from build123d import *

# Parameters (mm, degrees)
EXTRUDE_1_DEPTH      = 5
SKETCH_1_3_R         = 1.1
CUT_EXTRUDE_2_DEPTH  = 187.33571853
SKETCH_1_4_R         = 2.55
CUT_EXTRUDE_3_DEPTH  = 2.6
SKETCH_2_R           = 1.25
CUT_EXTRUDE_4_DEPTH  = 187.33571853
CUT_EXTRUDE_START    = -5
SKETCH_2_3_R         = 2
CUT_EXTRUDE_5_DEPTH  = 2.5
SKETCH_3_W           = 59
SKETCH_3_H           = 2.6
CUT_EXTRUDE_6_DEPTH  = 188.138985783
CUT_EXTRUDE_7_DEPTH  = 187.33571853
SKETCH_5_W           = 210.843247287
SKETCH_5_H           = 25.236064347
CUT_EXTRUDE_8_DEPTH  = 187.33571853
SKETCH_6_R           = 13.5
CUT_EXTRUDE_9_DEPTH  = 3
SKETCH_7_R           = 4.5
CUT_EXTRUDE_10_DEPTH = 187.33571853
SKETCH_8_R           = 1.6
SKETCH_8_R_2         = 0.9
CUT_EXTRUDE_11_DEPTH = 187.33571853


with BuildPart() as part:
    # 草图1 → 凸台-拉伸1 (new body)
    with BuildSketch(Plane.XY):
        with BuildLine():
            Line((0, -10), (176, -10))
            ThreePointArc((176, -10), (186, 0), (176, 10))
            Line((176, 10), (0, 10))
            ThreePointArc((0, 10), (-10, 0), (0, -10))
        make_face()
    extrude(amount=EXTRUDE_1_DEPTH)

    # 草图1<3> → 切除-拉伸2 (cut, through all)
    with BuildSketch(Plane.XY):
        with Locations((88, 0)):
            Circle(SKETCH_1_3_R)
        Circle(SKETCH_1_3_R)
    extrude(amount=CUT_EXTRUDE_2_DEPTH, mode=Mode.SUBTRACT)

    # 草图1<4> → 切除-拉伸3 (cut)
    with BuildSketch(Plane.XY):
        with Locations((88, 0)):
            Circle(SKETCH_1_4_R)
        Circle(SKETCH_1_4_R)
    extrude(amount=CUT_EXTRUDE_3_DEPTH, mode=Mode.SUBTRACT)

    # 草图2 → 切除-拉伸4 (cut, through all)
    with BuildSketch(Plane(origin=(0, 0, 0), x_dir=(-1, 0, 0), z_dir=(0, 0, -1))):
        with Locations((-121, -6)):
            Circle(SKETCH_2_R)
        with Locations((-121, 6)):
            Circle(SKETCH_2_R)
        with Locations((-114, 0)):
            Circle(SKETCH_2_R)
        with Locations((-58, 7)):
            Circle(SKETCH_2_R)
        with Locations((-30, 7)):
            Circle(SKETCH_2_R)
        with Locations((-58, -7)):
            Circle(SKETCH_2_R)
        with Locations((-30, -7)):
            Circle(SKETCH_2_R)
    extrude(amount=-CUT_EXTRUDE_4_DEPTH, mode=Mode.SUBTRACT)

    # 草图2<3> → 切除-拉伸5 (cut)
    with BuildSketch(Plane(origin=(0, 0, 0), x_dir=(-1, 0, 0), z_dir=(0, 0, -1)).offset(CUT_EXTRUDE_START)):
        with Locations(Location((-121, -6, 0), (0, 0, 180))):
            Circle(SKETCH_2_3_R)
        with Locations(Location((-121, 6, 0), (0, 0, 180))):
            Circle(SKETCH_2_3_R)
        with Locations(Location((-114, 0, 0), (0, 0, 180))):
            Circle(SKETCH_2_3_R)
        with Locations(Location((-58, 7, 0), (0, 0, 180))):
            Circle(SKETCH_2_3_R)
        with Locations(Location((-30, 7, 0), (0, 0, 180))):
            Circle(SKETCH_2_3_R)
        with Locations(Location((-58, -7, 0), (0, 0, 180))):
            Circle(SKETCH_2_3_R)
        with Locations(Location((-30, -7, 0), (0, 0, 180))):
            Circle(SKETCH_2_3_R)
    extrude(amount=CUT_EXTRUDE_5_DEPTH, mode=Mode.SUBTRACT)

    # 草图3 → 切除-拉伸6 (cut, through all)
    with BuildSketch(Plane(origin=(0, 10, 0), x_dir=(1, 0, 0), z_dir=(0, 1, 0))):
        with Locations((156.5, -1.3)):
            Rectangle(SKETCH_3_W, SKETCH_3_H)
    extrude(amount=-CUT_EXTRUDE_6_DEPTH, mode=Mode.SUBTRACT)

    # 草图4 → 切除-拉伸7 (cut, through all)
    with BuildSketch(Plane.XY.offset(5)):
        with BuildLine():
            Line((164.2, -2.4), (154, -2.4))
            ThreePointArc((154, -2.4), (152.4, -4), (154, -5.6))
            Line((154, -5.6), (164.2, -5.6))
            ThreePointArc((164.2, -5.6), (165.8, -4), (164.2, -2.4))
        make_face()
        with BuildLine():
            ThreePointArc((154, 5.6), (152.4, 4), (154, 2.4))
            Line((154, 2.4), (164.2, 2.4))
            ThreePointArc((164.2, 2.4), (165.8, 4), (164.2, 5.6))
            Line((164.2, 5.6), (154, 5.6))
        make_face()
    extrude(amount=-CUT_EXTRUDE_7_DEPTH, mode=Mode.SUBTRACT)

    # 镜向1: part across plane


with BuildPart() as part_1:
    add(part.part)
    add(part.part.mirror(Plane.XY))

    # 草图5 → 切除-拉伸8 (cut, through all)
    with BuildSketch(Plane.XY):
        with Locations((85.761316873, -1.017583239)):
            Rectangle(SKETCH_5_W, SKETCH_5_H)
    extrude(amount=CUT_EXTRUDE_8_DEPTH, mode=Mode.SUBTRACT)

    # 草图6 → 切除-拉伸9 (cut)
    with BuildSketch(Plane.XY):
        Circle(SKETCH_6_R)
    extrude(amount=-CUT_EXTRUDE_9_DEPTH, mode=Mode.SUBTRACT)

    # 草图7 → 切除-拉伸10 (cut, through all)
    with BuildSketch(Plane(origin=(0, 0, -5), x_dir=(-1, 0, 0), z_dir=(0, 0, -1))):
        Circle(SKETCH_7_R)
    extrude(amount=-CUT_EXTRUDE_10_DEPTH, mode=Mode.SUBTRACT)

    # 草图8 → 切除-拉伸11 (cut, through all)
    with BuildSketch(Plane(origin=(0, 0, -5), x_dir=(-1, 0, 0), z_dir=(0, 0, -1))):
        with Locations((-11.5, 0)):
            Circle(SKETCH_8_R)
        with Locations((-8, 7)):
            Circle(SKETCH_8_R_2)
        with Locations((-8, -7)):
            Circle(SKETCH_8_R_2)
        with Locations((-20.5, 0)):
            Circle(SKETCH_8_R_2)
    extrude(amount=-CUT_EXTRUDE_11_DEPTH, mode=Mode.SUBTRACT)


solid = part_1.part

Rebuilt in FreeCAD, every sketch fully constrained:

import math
import FreeCAD as App
import Part
import Sketcher
from FreeCAD import Vector

doc = App.newDocument("Part")
body = doc.addObject("PartDesign::Body", "Body")

sketch1 = body.newObject("Sketcher::SketchObject", "Sketch")
sketch1.AttachmentSupport = (doc.getObject("XY_Plane"), [""])
sketch1.MapMode = "FlatFace"
sketch1.addGeometry([
    Part.LineSegment(Vector(0, -10, 0), Vector(176, -10, 0)),
    Part.ArcOfCircle(Part.Circle(Vector(176, 0, 0), Vector(0, 0, 1), 10), math.radians(-90), math.radians(90)),
    Part.LineSegment(Vector(176, 10, 0), Vector(0, 10, 0)),
    Part.ArcOfCircle(Part.Circle(Vector(0, 0, 0), Vector(0, 0, 1), 10), math.radians(90), math.radians(270)),
], False)
sketch1.addConstraint([
    Sketcher.Constraint("Tangent", 0, 2, 1, 1),
    Sketcher.Constraint("Tangent", 1, 2, 2, 1),
    Sketcher.Constraint("Tangent", 2, 2, 3, 1),
    Sketcher.Constraint("Tangent", 3, 2, 0, 1),
    Sketcher.Constraint("Horizontal", 0),
    Sketcher.Constraint("Horizontal", 2),
    Sketcher.Constraint("Coincident", 3, 3, -1, 1),
    Sketcher.Constraint("Radius", 1, 10.0),
    Sketcher.Constraint("DistanceX", 0, 1, 0, 2, 176.0),
])
pad1 = body.newObject("PartDesign::Pad", "Pad")
pad1.Profile = sketch1
pad1.Length = 5

sketch2 = body.newObject("Sketcher::SketchObject", "Sketch001")
sketch2.AttachmentSupport = (doc.getObject("XY_Plane"), [""])
sketch2.MapMode = "FlatFace"
sketch2.addGeometry([
    Part.Circle(Vector(88, 0, 0), Vector(0, 0, 1), 1.1),
    Part.Circle(Vector(0, 0, 0), Vector(0, 0, 1), 1.1),
], False)
sketch2.addConstraint([
    Sketcher.Constraint("Coincident", 1, 3, -1, 1),
    Sketcher.Constraint("Equal", 0, 1),
    Sketcher.Constraint("PointOnObject", 0, 3, -1),
    Sketcher.Constraint("Diameter", 0, 2.2),
    Sketcher.Constraint("DistanceX", -1, 1, 0, 3, 88.0),
])
pocket1 = body.newObject("PartDesign::Pocket", "Pocket")
pocket1.Profile = sketch2
pocket1.Type = "ThroughAll"
pocket1.Reversed = True

sketch3 = body.newObject("Sketcher::SketchObject", "Sketch002")
sketch3.AttachmentSupport = (doc.getObject("XY_Plane"), [""])
sketch3.MapMode = "FlatFace"
sketch3.addGeometry([
    Part.Circle(Vector(88, 0, 0), Vector(0, 0, 1), 2.55),
    Part.Circle(Vector(0, 0, 0), Vector(0, 0, 1), 2.55),
], False)
sketch3.addConstraint([
    Sketcher.Constraint("Coincident", 1, 3, -1, 1),
    Sketcher.Constraint("Equal", 0, 1),
    Sketcher.Constraint("PointOnObject", 0, 3, -1),
    Sketcher.Constraint("Diameter", 0, 5.1),
    Sketcher.Constraint("DistanceX", -1, 1, 0, 3, 88.0),
])
pocket2 = body.newObject("PartDesign::Pocket", "Pocket001")
pocket2.Profile = sketch3
pocket2.Length = 2.6
pocket2.Reversed = True

sketch4 = body.newObject("Sketcher::SketchObject", "Sketch003")
sketch4.AttachmentSupport = (doc.getObject("XY_Plane"), [""])
sketch4.MapMode = "FlatFace"
sketch4.addGeometry([
    Part.Circle(Vector(121, -6, 0), Vector(0, 0, 1), 1.25),
    Part.Circle(Vector(121, 6, 0), Vector(0, 0, 1), 1.25),
    Part.Circle(Vector(114, 0, 0), Vector(0, 0, 1), 1.25),
    Part.Circle(Vector(58, 7, 0), Vector(0, 0, 1), 1.25),
    Part.Circle(Vector(30, 7, 0), Vector(0, 0, 1), 1.25),
    Part.Circle(Vector(58, -7, 0), Vector(0, 0, 1), 1.25),
    Part.Circle(Vector(30, -7, 0), Vector(0, 0, 1), 1.25),
], False)
sketch4.addConstraint([
    Sketcher.Constraint("Equal", 0, 1),
    Sketcher.Constraint("Equal", 1, 2),
    Sketcher.Constraint("Equal", 2, 3),
    Sketcher.Constraint("Equal", 3, 4),
    Sketcher.Constraint("Equal", 4, 5),
    Sketcher.Constraint("Equal", 5, 6),
    Sketcher.Constraint("Symmetric", 0, 3, 1, 3, -1),
    Sketcher.Constraint("Symmetric", 3, 3, 5, 3, -1),
    Sketcher.Constraint("Symmetric", 4, 3, 6, 3, -1),
    Sketcher.Constraint("PointOnObject", 2, 3, -1),
    Sketcher.Constraint("Horizontal", 3, 3, 4, 3),
    Sketcher.Constraint("Diameter", 0, 2.5),
    Sketcher.Constraint("DistanceX", -1, 1, 0, 3, 121.0),
    Sketcher.Constraint("DistanceY", 0, 3, -1, 1, 6.0),
    Sketcher.Constraint("DistanceX", -1, 1, 2, 3, 114.0),
    Sketcher.Constraint("DistanceX", -1, 1, 3, 3, 58.0),
    Sketcher.Constraint("DistanceY", -1, 1, 3, 3, 7.0),
    Sketcher.Constraint("DistanceX", -1, 1, 4, 3, 30.0),
])
pocket3 = body.newObject("PartDesign::Pocket", "Pocket002")
pocket3.Profile = sketch4
pocket3.Type = "ThroughAll"
pocket3.Reversed = True

sketch5 = body.newObject("Sketcher::SketchObject", "Sketch004")
sketch5.AttachmentSupport = (doc.getObject("XY_Plane"), [""])
sketch5.MapMode = "FlatFace"
sketch5.AttachmentOffset = App.Placement(Vector(0, 0, 5), App.Rotation())
sketch5.addGeometry([
    Part.Circle(Vector(121, -6, 0), Vector(0, 0, 1), 2),
    Part.Circle(Vector(121, 6, 0), Vector(0, 0, 1), 2),
    Part.Circle(Vector(114, 0, 0), Vector(0, 0, 1), 2),
    Part.Circle(Vector(58, 7, 0), Vector(0, 0, 1), 2),
    Part.Circle(Vector(30, 7, 0), Vector(0, 0, 1), 2),
    Part.Circle(Vector(58, -7, 0), Vector(0, 0, 1), 2),
    Part.Circle(Vector(30, -7, 0), Vector(0, 0, 1), 2),
], False)
sketch5.addConstraint([
    Sketcher.Constraint("Equal", 0, 1),
    Sketcher.Constraint("Equal", 1, 2),
    Sketcher.Constraint("Equal", 2, 3),
    Sketcher.Constraint("Equal", 3, 4),
    Sketcher.Constraint("Equal", 4, 5),
    Sketcher.Constraint("Equal", 5, 6),
    Sketcher.Constraint("Symmetric", 0, 3, 1, 3, -1),
    Sketcher.Constraint("Symmetric", 3, 3, 5, 3, -1),
    Sketcher.Constraint("Symmetric", 4, 3, 6, 3, -1),
    Sketcher.Constraint("PointOnObject", 2, 3, -1),
    Sketcher.Constraint("Horizontal", 3, 3, 4, 3),
    Sketcher.Constraint("Diameter", 0, 4.0),
    Sketcher.Constraint("DistanceX", -1, 1, 0, 3, 121.0),
    Sketcher.Constraint("DistanceY", 0, 3, -1, 1, 6.0),
    Sketcher.Constraint("DistanceX", -1, 1, 2, 3, 114.0),
    Sketcher.Constraint("DistanceX", -1, 1, 3, 3, 58.0),
    Sketcher.Constraint("DistanceY", -1, 1, 3, 3, 7.0),
    Sketcher.Constraint("DistanceX", -1, 1, 4, 3, 30.0),
])
pocket4 = body.newObject("PartDesign::Pocket", "Pocket003")
pocket4.Profile = sketch5
pocket4.Length = 2.5

sketch6 = body.newObject("Sketcher::SketchObject", "Sketch005")
sketch6.AttachmentSupport = (doc.getObject("XZ_Plane"), [""])
sketch6.MapMode = "FlatFace"
sketch6.AttachmentOffset = App.Placement(Vector(0, 0, -10), App.Rotation())
sketch6.addGeometry([
    Part.LineSegment(Vector(127, 0, 0), Vector(127, 2.6, 0)),
    Part.LineSegment(Vector(127, 2.6, 0), Vector(186, 2.6, 0)),
    Part.LineSegment(Vector(186, 2.6, 0), Vector(186, 0, 0)),
    Part.LineSegment(Vector(186, 0, 0), Vector(127, 0, 0)),
], False)
sketch6.addConstraint([
    Sketcher.Constraint("Coincident", 0, 2, 1, 1),
    Sketcher.Constraint("Coincident", 1, 2, 2, 1),
    Sketcher.Constraint("Coincident", 2, 2, 3, 1),
    Sketcher.Constraint("Coincident", 3, 2, 0, 1),
    Sketcher.Constraint("Vertical", 0),
    Sketcher.Constraint("Horizontal", 1),
    Sketcher.Constraint("Vertical", 2),
    Sketcher.Constraint("Horizontal", 3),
    Sketcher.Constraint("PointOnObject", 2, 2, -1),
    Sketcher.Constraint("DistanceX", 1, 1, 1, 2, 59.0),
    Sketcher.Constraint("DistanceY", 0, 1, 0, 2, 2.6),
    Sketcher.Constraint("DistanceX", -1, 1, 0, 2, 127.0),
])
pocket5 = body.newObject("PartDesign::Pocket", "Pocket004")
pocket5.Profile = sketch6
pocket5.Type = "ThroughAll"
pocket5.Reversed = True

sketch7 = body.newObject("Sketcher::SketchObject", "Sketch006")
sketch7.AttachmentSupport = (doc.getObject("XY_Plane"), [""])
sketch7.MapMode = "FlatFace"
sketch7.AttachmentOffset = App.Placement(Vector(0, 0, 5), App.Rotation())
sketch7.addGeometry([
    Part.LineSegment(Vector(164.2, -2.4, 0), Vector(154, -2.4, 0)),
    Part.ArcOfCircle(Part.Circle(Vector(154, -4, 0), Vector(0, 0, 1), 1.6), math.radians(90), math.radians(270)),
    Part.LineSegment(Vector(154, -5.6, 0), Vector(164.2, -5.6, 0)),
    Part.ArcOfCircle(Part.Circle(Vector(164.2, -4, 0), Vector(0, 0, 1), 1.6), math.radians(-90), math.radians(90)),
    Part.ArcOfCircle(Part.Circle(Vector(154, 4, 0), Vector(0, 0, 1), 1.6), math.radians(90), math.radians(270)),
    Part.LineSegment(Vector(154, 2.4, 0), Vector(164.2, 2.4, 0)),
    Part.ArcOfCircle(Part.Circle(Vector(164.2, 4, 0), Vector(0, 0, 1), 1.6), math.radians(-90), math.radians(90)),
    Part.LineSegment(Vector(164.2, 5.6, 0), Vector(154, 5.6, 0)),
], False)
sketch7.addConstraint([
    Sketcher.Constraint("Tangent", 0, 2, 1, 1),
    Sketcher.Constraint("Tangent", 1, 2, 2, 1),
    Sketcher.Constraint("Tangent", 2, 2, 3, 1),
    Sketcher.Constraint("Tangent", 3, 2, 0, 1),
    Sketcher.Constraint("Tangent", 4, 2, 5, 1),
    Sketcher.Constraint("Tangent", 5, 2, 6, 1),
    Sketcher.Constraint("Tangent", 6, 2, 7, 1),
    Sketcher.Constraint("Tangent", 7, 2, 4, 1),
    Sketcher.Constraint("Horizontal", 0),
    Sketcher.Constraint("Horizontal", 2),
    Sketcher.Constraint("Horizontal", 5),
    Sketcher.Constraint("Horizontal", 7),
    Sketcher.Constraint("Equal", 3, 4),
    Sketcher.Constraint("Symmetric", 1, 3, 4, 3, -1),
    Sketcher.Constraint("Vertical", 3, 3, 6, 3),
    Sketcher.Constraint("Radius", 1, 1.6),
    Sketcher.Constraint("DistanceX", 0, 2, 0, 1, 10.2),
    Sketcher.Constraint("DistanceX", -1, 1, 1, 3, 154.0),
    Sketcher.Constraint("DistanceY", 1, 3, -1, 1, 4.0),
])
pocket6 = body.newObject("PartDesign::Pocket", "Pocket005")
pocket6.Profile = sketch7
pocket6.Type = "ThroughAll"
body2 = doc.addObject("PartDesign::Body", "Body001")
doc.recompute()

body2.BaseFeature = body
doc.recompute()

mirroring = doc.addObject("Part::Mirroring", "Mirroring")
mirroring.Source = body
mirroring.Base = Vector(0, 0, 0)
mirroring.Normal = Vector(0, 0, 1)
body3 = doc.addObject("PartDesign::Body", "Body002")
body3.BaseFeature = mirroring
boolean = body2.newObject("PartDesign::Boolean", "Boolean")
boolean.Type = "Fuse"
boolean.addObjects([body3])
doc.recompute()

sketch8 = body2.newObject("Sketcher::SketchObject", "Sketch007")
sketch8.AttachmentSupport = (doc.getObject("XY_Plane001"), [""])
sketch8.MapMode = "FlatFace"
sketch8.addGeometry([
    Part.LineSegment(Vector(-19.660307, 11.600449, 0), Vector(-19.660307, -13.635615, 0)),
    Part.LineSegment(Vector(-19.660307, -13.635615, 0), Vector(191.182941, -13.635615, 0)),
    Part.LineSegment(Vector(191.182941, -13.635615, 0), Vector(191.182941, 11.600449, 0)),
    Part.LineSegment(Vector(191.182941, 11.600449, 0), Vector(-19.660307, 11.600449, 0)),
], False)
sketch8.addConstraint([
    Sketcher.Constraint("Coincident", 0, 2, 1, 1),
    Sketcher.Constraint("Coincident", 1, 2, 2, 1),
    Sketcher.Constraint("Coincident", 2, 2, 3, 1),
    Sketcher.Constraint("Coincident", 3, 2, 0, 1),
    Sketcher.Constraint("Vertical", 0),
    Sketcher.Constraint("Horizontal", 1),
    Sketcher.Constraint("Vertical", 2),
    Sketcher.Constraint("Horizontal", 3),
    Sketcher.Constraint("DistanceX", 1, 1, 1, 2, 210.843247),
    Sketcher.Constraint("DistanceY", 0, 2, 0, 1, 25.236064),
    Sketcher.Constraint("DistanceX", -1, 1, 1, 2, 191.182941),
    Sketcher.Constraint("DistanceY", -1, 1, 2, 2, 11.600449),
])
pocket7 = body2.newObject("PartDesign::Pocket", "Pocket006")
pocket7.Profile = sketch8
pocket7.Type = "ThroughAll"
pocket7.Reversed = True

sketch9 = body2.newObject("Sketcher::SketchObject", "Sketch008")
sketch9.AttachmentSupport = (doc.getObject("XY_Plane001"), [""])
sketch9.MapMode = "FlatFace"
sketch9.addGeometry(Part.Circle(Vector(0, 0, 0), Vector(0, 0, 1), 13.5), False)
sketch9.addConstraint([
    Sketcher.Constraint("Coincident", 0, 3, -1, 1),
    Sketcher.Constraint("Diameter", 0, 27.0),
])
pocket8 = body2.newObject("PartDesign::Pocket", "Pocket007")
pocket8.Profile = sketch9
pocket8.Length = 3

sketch10 = body2.newObject("Sketcher::SketchObject", "Sketch009")
sketch10.AttachmentSupport = (doc.getObject("XY_Plane001"), [""])
sketch10.MapMode = "FlatFace"
sketch10.AttachmentOffset = App.Placement(Vector(0, 0, -5), App.Rotation())
sketch10.addGeometry(Part.Circle(Vector(0, 0, 0), Vector(0, 0, 1), 4.5), False)
sketch10.addConstraint([
    Sketcher.Constraint("Coincident", 0, 3, -1, 1),
    Sketcher.Constraint("Diameter", 0, 9.0),
])
pocket9 = body2.newObject("PartDesign::Pocket", "Pocket008")
pocket9.Profile = sketch10
pocket9.Type = "ThroughAll"
pocket9.Reversed = True

sketch11 = body2.newObject("Sketcher::SketchObject", "Sketch010")
sketch11.AttachmentSupport = (doc.getObject("XY_Plane001"), [""])
sketch11.MapMode = "FlatFace"
sketch11.AttachmentOffset = App.Placement(Vector(0, 0, -5), App.Rotation())
sketch11.addGeometry([
    Part.Circle(Vector(11.5, 0, 0), Vector(0, 0, 1), 1.6),
    Part.Circle(Vector(8, 7, 0), Vector(0, 0, 1), 0.9),
    Part.Circle(Vector(8, -7, 0), Vector(0, 0, 1), 0.9),
    Part.Circle(Vector(20.5, 0, 0), Vector(0, 0, 1), 0.9),
], False)
sketch11.addConstraint([
    Sketcher.Constraint("Equal", 1, 2),
    Sketcher.Constraint("Equal", 2, 3),
    Sketcher.Constraint("Symmetric", 1, 3, 2, 3, -1),
    Sketcher.Constraint("PointOnObject", 0, 3, -1),
    Sketcher.Constraint("PointOnObject", 3, 3, -1),
    Sketcher.Constraint("Diameter", 0, 3.2),
    Sketcher.Constraint("Diameter", 1, 1.8),
    Sketcher.Constraint("DistanceX", -1, 1, 1, 3, 8.0),
    Sketcher.Constraint("DistanceY", -1, 1, 1, 3, 7.0),
    Sketcher.Constraint("DistanceX", 0, 3, 3, 3, 9.0),
    Sketcher.Constraint("DistanceX", -1, 1, 0, 3, 11.5),
])
pocket10 = body2.newObject("PartDesign::Pocket", "Pocket009")
pocket10.Profile = sketch11
pocket10.Type = "ThroughAll"
pocket10.Reversed = True
mirroring.Visibility = False

doc.recompute()
